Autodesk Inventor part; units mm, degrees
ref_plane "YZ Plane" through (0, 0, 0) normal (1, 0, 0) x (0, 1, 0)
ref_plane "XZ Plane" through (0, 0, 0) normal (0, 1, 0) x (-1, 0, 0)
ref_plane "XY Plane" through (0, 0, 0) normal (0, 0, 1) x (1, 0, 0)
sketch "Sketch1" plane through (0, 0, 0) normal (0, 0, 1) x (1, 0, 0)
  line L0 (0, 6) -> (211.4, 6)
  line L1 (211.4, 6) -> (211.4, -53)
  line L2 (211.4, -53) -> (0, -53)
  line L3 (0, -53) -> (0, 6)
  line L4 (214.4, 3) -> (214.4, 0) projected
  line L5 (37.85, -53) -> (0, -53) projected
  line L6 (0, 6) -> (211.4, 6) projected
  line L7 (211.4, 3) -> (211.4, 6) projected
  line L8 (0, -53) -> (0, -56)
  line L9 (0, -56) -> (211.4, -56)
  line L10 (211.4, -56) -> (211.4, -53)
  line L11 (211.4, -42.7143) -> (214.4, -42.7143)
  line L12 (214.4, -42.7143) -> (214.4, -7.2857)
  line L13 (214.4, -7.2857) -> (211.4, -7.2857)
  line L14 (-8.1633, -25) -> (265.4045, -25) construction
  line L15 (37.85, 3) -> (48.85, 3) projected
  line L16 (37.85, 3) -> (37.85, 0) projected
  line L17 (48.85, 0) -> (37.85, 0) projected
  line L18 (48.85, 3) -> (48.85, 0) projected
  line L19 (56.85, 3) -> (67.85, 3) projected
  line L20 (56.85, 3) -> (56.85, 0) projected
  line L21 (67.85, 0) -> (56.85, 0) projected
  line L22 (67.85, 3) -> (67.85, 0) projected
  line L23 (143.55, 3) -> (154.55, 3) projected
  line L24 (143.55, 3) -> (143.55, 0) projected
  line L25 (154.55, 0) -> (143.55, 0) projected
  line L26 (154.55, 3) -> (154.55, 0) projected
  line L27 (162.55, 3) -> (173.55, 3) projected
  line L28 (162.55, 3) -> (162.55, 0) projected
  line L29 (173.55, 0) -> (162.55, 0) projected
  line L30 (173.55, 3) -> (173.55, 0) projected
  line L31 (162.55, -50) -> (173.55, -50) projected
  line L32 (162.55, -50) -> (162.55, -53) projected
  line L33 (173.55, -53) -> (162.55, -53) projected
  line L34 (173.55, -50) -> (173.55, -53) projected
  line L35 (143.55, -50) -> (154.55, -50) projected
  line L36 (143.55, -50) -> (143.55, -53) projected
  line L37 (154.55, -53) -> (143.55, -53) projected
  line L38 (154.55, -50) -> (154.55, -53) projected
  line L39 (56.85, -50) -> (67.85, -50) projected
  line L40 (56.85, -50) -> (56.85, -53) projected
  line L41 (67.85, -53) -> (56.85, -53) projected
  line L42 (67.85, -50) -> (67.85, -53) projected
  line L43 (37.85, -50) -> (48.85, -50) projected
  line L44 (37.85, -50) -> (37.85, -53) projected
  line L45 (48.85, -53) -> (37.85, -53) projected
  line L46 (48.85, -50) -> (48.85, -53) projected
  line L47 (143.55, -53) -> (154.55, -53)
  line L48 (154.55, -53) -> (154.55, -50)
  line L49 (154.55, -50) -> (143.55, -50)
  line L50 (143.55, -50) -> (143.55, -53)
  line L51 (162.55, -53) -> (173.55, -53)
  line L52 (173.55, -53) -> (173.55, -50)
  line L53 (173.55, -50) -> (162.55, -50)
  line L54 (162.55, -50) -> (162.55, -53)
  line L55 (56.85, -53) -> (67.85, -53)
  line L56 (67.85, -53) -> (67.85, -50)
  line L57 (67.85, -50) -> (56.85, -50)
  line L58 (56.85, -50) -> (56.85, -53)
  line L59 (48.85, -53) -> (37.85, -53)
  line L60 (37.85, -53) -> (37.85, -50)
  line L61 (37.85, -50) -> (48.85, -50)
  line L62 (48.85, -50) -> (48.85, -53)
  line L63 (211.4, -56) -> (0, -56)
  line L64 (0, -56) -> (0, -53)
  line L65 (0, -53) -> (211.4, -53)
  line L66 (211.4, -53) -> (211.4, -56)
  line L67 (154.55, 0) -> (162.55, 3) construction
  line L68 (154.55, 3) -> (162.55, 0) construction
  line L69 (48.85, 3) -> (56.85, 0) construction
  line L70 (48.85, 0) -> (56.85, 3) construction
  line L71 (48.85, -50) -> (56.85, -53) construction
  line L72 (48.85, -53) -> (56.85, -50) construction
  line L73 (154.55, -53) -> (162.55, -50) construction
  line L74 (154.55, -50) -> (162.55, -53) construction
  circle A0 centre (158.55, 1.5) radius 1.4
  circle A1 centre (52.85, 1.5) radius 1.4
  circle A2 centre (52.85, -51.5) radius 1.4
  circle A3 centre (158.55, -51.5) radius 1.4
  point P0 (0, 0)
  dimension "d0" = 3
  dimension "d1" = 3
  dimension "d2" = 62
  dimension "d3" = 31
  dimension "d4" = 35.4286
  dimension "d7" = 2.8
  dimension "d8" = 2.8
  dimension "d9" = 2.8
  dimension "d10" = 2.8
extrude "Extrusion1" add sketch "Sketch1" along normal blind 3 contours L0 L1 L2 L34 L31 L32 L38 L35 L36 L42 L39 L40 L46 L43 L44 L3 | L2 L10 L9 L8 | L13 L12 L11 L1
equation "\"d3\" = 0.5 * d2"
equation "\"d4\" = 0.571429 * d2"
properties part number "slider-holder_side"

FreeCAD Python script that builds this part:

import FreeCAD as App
import Part
import Sketcher
Q = App.Units.Quantity


def add_polygon(sketch, points):
    """Adds a closed chain of lines whose ends are joined by coincident constraints."""
    first, n = sketch.GeometryCount, len(points)
    for a, b in zip(points, points[1:] + points[:1]):
        sketch.addGeometry(Part.LineSegment(App.Vector(*a, 0), App.Vector(*b, 0)), False)
    for i in range(n):
        sketch.addConstraint(Sketcher.Constraint("Coincident", first + i, 2, first + (i + 1) % n, 1))

doc = App.newDocument("Part")
body = doc.addObject("PartDesign::Body", "Body")

# Sketch on XY plane
sketch1 = body.newObject("Sketcher::SketchObject", "Sketch")
sketch1.AttachmentSupport = (doc.getObject("XY_Plane"), [""])
sketch1.MapMode = "FlatFace"
add_polygon(sketch1, [(211.4, 6), (0, 6), (0, -56), (211.4, -56), (211.4, -42.7), (214.4, -42.7), (214.4, -7.3), (211.4, -7.3)])  # lines 0-7
add_polygon(sketch1, [(173.6, -50), (173.6, -53), (162.6, -53), (162.6, -50)])  # lines 8-11
add_polygon(sketch1, [(154.6, -50), (154.6, -53), (143.6, -53), (143.6, -50)])  # lines 12-15
add_polygon(sketch1, [(67.8, -50), (67.8, -53), (56.9, -53), (56.9, -50)])  # lines 16-19
add_polygon(sketch1, [(48.9, -50), (48.9, -53), (37.9, -53), (37.9, -50)])  # lines 20-23
sketch1.addGeometry(Part.Circle(App.Vector(52.9, -51.5, 0), App.Vector(0, 0, 1), 1.4), False)  # 24
sketch1.addGeometry(Part.Circle(App.Vector(158.6, -51.5, 0), App.Vector(0, 0, 1), 1.4), False)  # 25
add_polygon(sketch1, [(37.9, 0), (37.9, 3), (48.9, 3), (48.9, 0)])  # lines 26-29
sketch1.addGeometry(Part.Circle(App.Vector(52.9, 1.5, 0), App.Vector(0, 0, 1), 1.4), False)  # 30
add_polygon(sketch1, [(56.9, 0), (56.9, 3), (67.8, 3), (67.8, 0)])  # lines 31-34
add_polygon(sketch1, [(143.6, 0), (143.6, 3), (154.6, 3), (154.6, 0)])  # lines 35-38
sketch1.addGeometry(Part.Circle(App.Vector(158.6, 1.5, 0), App.Vector(0, 0, 1), 1.4), False)  # 39
add_polygon(sketch1, [(162.6, 0), (162.6, 3), (173.6, 3), (173.6, 0)])  # lines 40-43
sketch1.addConstraint(Sketcher.Constraint("Horizontal", 0))
sketch1.addConstraint(Sketcher.Constraint("Vertical", 1))
sketch1.addConstraint(Sketcher.Constraint("Horizontal", 2))
sketch1.addConstraint(Sketcher.Constraint("Vertical", 3))
sketch1.addConstraint(Sketcher.Constraint("Horizontal", 4))
sketch1.addConstraint(Sketcher.Constraint("Vertical", 5))
sketch1.addConstraint(Sketcher.Constraint("Horizontal", 6))
sketch1.addConstraint(Sketcher.Constraint("Vertical", 7))
sketch1.addConstraint(Sketcher.Constraint("Vertical", 8))
sketch1.addConstraint(Sketcher.Constraint("Horizontal", 9))
sketch1.addConstraint(Sketcher.Constraint("Vertical", 10))
sketch1.addConstraint(Sketcher.Constraint("Horizontal", 11))
sketch1.addConstraint(Sketcher.Constraint("Vertical", 12))
sketch1.addConstraint(Sketcher.Constraint("Horizontal", 13))
sketch1.addConstraint(Sketcher.Constraint("Vertical", 14))
sketch1.addConstraint(Sketcher.Constraint("Horizontal", 15))
sketch1.addConstraint(Sketcher.Constraint("Vertical", 16))
sketch1.addConstraint(Sketcher.Constraint("Horizontal", 17))
sketch1.addConstraint(Sketcher.Constraint("Vertical", 18))
sketch1.addConstraint(Sketcher.Constraint("Horizontal", 19))
sketch1.addConstraint(Sketcher.Constraint("Vertical", 20))
sketch1.addConstraint(Sketcher.Constraint("Horizontal", 21))
sketch1.addConstraint(Sketcher.Constraint("Vertical", 22))
sketch1.addConstraint(Sketcher.Constraint("Horizontal", 23))
sketch1.addConstraint(Sketcher.Constraint("Vertical", 26))
sketch1.addConstraint(Sketcher.Constraint("Horizontal", 27))
sketch1.addConstraint(Sketcher.Constraint("Vertical", 28))
sketch1.addConstraint(Sketcher.Constraint("Horizontal", 29))
sketch1.addConstraint(Sketcher.Constraint("Vertical", 31))
sketch1.addConstraint(Sketcher.Constraint("Horizontal", 32))
sketch1.addConstraint(Sketcher.Constraint("Vertical", 33))
sketch1.addConstraint(Sketcher.Constraint("Horizontal", 34))
sketch1.addConstraint(Sketcher.Constraint("Vertical", 35))
sketch1.addConstraint(Sketcher.Constraint("Horizontal", 36))
sketch1.addConstraint(Sketcher.Constraint("Vertical", 37))
sketch1.addConstraint(Sketcher.Constraint("Horizontal", 38))
sketch1.addConstraint(Sketcher.Constraint("Vertical", 40))
sketch1.addConstraint(Sketcher.Constraint("Horizontal", 41))
sketch1.addConstraint(Sketcher.Constraint("Vertical", 42))
sketch1.addConstraint(Sketcher.Constraint("Horizontal", 43))
sketch1.addConstraint(Sketcher.Constraint("Equal", 24, 25))
sketch1.addConstraint(Sketcher.Constraint("Equal", 25, 30))
sketch1.addConstraint(Sketcher.Constraint("Equal", 30, 39))
sketch1.addConstraint(Sketcher.Constraint("PointOnObject", 0, 2, -2))
sketch1.addConstraint(Sketcher.Constraint("PointOnObject", 28, 2, -1))
sketch1.addConstraint(Sketcher.Constraint("PointOnObject", 33, 2, -1))
sketch1.addConstraint(Sketcher.Constraint("PointOnObject", 37, 2, -1))
sketch1.addConstraint(Sketcher.Constraint("PointOnObject", 42, 2, -1))
sketch1.addConstraint(Sketcher.Constraint("Horizontal", 24, 3, 25, 3))
sketch1.addConstraint(Sketcher.Constraint("Horizontal", 30, 3, 39, 3))
sketch1.addConstraint(Sketcher.Constraint("Horizontal", 9, 2, 12, 2))
sketch1.addConstraint(Sketcher.Constraint("Horizontal", 11, 2, 14, 2))
sketch1.addConstraint(Sketcher.Constraint("Horizontal", 13, 2, 16, 2))
sketch1.addConstraint(Sketcher.Constraint("Horizontal", 15, 2, 18, 2))
sketch1.addConstraint(Sketcher.Constraint("Horizontal", 17, 2, 20, 2))
sketch1.addConstraint(Sketcher.Constraint("Horizontal", 19, 2, 22, 2))
sketch1.addConstraint(Sketcher.Constraint("Horizontal", 27, 2, 31, 2))
sketch1.addConstraint(Sketcher.Constraint("Horizontal", 32, 2, 35, 2))
sketch1.addConstraint(Sketcher.Constraint("Horizontal", 36, 2, 40, 2))
sketch1.addConstraint(Sketcher.Constraint("Vertical", 24, 3, 30, 3))
sketch1.addConstraint(Sketcher.Constraint("Vertical", 25, 3, 39, 3))
sketch1.addConstraint(Sketcher.Constraint("Vertical", 3, 2, 6, 2))
sketch1.addConstraint(Sketcher.Constraint("Vertical", 22, 2, 26, 2))
sketch1.addConstraint(Sketcher.Constraint("Vertical", 23, 2, 27, 2))
sketch1.addConstraint(Sketcher.Constraint("Vertical", 18, 2, 31, 2))
sketch1.addConstraint(Sketcher.Constraint("Vertical", 19, 2, 32, 2))
sketch1.addConstraint(Sketcher.Constraint("Vertical", 14, 2, 35, 2))
sketch1.addConstraint(Sketcher.Constraint("Vertical", 15, 2, 36, 2))
sketch1.addConstraint(Sketcher.Constraint("Vertical", 10, 2, 40, 2))
sketch1.addConstraint(Sketcher.Constraint("Vertical", 11, 2, 41, 2))
sketch1.addConstraint(Sketcher.Constraint("Equal", 11, 13))
sketch1.addConstraint(Sketcher.Constraint("Equal", 15, 17))
sketch1.addConstraint(Sketcher.Constraint("Equal", 19, 21))
sketch1.addConstraint(Sketcher.Constraint("Equal", 3, 7))
sketch1.addConstraint(Sketcher.Constraint("Equal", 6, 8))
sketch1.addConstraint(Sketcher.Constraint("Equal", 22, 26))
sketch1.addConstraint(Sketcher.Constraint("Diameter", 24, Q("2.8 mm")))
sketch1.addConstraint(Sketcher.Constraint("DistanceX", 4, 1, 4, 2, Q("3 mm")))
sketch1.addConstraint(Sketcher.Constraint("DistanceY", 1, 2, 1, 1, Q("62 mm")))
sketch1.addConstraint(Sketcher.Constraint("DistanceY", 2, 2, 8, 2, Q("3 mm")))
sketch1.addConstraint(Sketcher.Constraint("DistanceY", 26, 2, 0, 2, Q("3 mm")))
sketch1.addConstraint(Sketcher.Constraint("DistanceX", 9, 2, 9, 1, Q("11 mm")))
sketch1.addConstraint(Sketcher.Constraint("DistanceX", 0, 2, 0, 1, Q("211.4 mm")))
sketch1.addConstraint(Sketcher.Constraint("DistanceY", 5, 1, 5, 2, Q("35.4286 mm")))
sketch1.addConstraint(Sketcher.Constraint("DistanceY", 24, 3, 30, 3, Q("53 mm")))
sketch1.addConstraint(Sketcher.Constraint("DistanceX", 25, 3, 8, 2, Q("15 mm")))
sketch1.addConstraint(Sketcher.Constraint("DistanceX", 12, 2, 25, 3, Q("4 mm")))
sketch1.addConstraint(Sketcher.Constraint("DistanceX", 24, 3, 16, 2, Q("15 mm")))
sketch1.addConstraint(Sketcher.Constraint("DistanceX", 20, 2, 24, 3, Q("4 mm")))
sketch1.addConstraint(Sketcher.Constraint("DistanceY", 24, 3, -1, 1, Q("51.5 mm")))
sketch1.addConstraint(Sketcher.Constraint("DistanceX", 24, 3, 25, 3, Q("105.7 mm")))
sketch1.addConstraint(Sketcher.Constraint("DistanceX", -1, 1, 24, 3, Q("52.85 mm")))
pad1 = body.newObject("PartDesign::Pad", "Pad")
pad1.Profile = sketch1
pad1.Length = 3

doc.recompute()
